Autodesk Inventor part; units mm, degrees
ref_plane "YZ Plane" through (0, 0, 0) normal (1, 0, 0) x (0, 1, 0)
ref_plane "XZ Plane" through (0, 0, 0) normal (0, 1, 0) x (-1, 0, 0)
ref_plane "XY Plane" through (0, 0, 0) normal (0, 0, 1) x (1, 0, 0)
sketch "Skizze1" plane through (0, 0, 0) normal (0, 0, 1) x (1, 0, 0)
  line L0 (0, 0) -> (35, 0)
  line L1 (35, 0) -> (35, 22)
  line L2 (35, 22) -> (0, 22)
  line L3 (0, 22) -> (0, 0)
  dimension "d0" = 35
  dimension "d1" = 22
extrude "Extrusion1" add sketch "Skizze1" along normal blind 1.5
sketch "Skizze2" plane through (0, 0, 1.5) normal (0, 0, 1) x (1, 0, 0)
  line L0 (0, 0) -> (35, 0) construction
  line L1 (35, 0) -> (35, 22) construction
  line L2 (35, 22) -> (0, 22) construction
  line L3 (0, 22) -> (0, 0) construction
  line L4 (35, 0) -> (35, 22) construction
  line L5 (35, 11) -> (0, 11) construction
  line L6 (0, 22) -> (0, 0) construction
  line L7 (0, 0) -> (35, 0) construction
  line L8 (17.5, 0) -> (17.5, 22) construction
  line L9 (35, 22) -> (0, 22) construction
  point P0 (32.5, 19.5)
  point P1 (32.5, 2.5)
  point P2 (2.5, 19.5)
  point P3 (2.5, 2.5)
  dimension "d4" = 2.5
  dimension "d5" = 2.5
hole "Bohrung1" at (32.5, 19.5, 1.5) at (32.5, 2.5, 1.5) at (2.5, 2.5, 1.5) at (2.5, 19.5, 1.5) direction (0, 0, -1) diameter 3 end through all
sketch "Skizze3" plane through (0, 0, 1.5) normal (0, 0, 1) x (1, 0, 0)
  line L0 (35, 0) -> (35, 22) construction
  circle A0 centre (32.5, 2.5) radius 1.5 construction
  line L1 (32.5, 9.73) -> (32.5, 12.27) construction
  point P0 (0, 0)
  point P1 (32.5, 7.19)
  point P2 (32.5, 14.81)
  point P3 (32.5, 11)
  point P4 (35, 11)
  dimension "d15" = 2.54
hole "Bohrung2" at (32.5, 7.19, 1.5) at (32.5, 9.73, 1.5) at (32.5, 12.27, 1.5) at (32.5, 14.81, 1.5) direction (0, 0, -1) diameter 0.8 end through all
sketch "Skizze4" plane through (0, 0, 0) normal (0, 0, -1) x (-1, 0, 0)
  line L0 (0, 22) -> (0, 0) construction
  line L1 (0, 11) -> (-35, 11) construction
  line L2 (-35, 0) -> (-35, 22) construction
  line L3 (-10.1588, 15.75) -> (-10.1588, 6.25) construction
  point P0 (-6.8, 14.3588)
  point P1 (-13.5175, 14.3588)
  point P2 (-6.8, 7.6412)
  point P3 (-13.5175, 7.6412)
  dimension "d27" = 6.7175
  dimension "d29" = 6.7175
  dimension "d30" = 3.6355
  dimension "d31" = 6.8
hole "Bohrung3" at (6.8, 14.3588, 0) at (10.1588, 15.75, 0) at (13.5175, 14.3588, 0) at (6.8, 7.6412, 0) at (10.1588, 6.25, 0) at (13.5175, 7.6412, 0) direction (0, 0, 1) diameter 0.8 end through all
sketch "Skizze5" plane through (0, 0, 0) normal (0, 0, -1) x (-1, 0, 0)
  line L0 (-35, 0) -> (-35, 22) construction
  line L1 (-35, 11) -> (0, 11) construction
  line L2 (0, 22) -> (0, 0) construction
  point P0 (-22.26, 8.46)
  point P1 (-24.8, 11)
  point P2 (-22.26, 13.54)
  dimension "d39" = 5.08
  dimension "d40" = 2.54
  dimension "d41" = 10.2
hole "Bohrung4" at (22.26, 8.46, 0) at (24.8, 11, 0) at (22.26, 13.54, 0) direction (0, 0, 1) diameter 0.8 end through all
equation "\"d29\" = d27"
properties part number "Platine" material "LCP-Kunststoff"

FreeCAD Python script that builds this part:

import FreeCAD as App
import Part
import Sketcher
Q = App.Units.Quantity


def add_polygon(sketch, points):
    """Adds a closed chain of lines whose ends are joined by coincident constraints."""
    first, n = sketch.GeometryCount, len(points)
    for a, b in zip(points, points[1:] + points[:1]):
        sketch.addGeometry(Part.LineSegment(App.Vector(*a, 0), App.Vector(*b, 0)), False)
    for i in range(n):
        sketch.addConstraint(Sketcher.Constraint("Coincident", first + i, 2, first + (i + 1) % n, 1))

doc = App.newDocument("Part")
params = doc.addObject("Spreadsheet::Sheet", "Params")
for row, (alias, value) in enumerate([
    ("sketch1_width", "35 mm"),
    ("sketch1_height", "22 mm"),
    ("pad1_length", "1.5 mm"),
    ("sketch2_diameter", "3 mm"),
    ("hole_diameter", "3 mm"),
    ("sketch3_diameter", "0.8 mm"),
    ("hole2_diameter", "0.8 mm"),
    ("sketch4_diameter", "0.8 mm"),
    ("hole3_diameter", "0.8 mm"),
    ("sketch5_diameter", "0.8 mm"),
    ("hole4_diameter", "0.8 mm"),
], start=1):
    params.set(f"A{row}", alias)
    params.set(f"B{row}", "=" + value)
    params.setAlias(f"B{row}", alias)

body = doc.addObject("PartDesign::Body", "Body")

# Sketch on XY plane
sketch1 = body.newObject("Sketcher::SketchObject", "Sketch")
sketch1.AttachmentSupport = (doc.getObject("XY_Plane"), [""])
sketch1.MapMode = "FlatFace"
add_polygon(sketch1, [(0, 22), (0, 0), (35, 0), (35, 22)])  # lines 0-3
sketch1.addConstraint(Sketcher.Constraint("Vertical", 0))
sketch1.addConstraint(Sketcher.Constraint("Horizontal", 1))
sketch1.addConstraint(Sketcher.Constraint("Vertical", 2))
sketch1.addConstraint(Sketcher.Constraint("Horizontal", 3))
sketch1.addConstraint(Sketcher.Constraint("Coincident", 0, 2, -1, 1))
sketch1.addConstraint(Sketcher.Constraint("DistanceX", 1, 1, 1, 2, Q("35 mm")))
sketch1.addConstraint(Sketcher.Constraint("DistanceY", 0, 2, 0, 1, Q("22 mm")))
sketch1.setExpression("Constraints[9]", "Params.sketch1_width")
sketch1.setExpression("Constraints[10]", "Params.sketch1_height")
pad1 = body.newObject("PartDesign::Pad", "Pad")
pad1.Profile = sketch1
pad1.setExpression("Length", "Params.pad1_length")

# Sketch on XY plane
sketch2 = body.newObject("Sketcher::SketchObject", "Sketch001")
sketch2.AttachmentSupport = (doc.getObject("XY_Plane"), [""])
sketch2.MapMode = "FlatFace"
sketch2.AttachmentOffset = App.Placement(App.Vector(0, 0, 1.5), App.Rotation())
sketch2.addGeometry(Part.Circle(App.Vector(32.5, 19.5, 0), App.Vector(0, 0, 1), 1.5), False)
sketch2.addGeometry(Part.Circle(App.Vector(32.5, 2.5, 0), App.Vector(0, 0, 1), 1.5), False)
sketch2.addGeometry(Part.Circle(App.Vector(2.5, 2.5, 0), App.Vector(0, 0, 1), 1.5), False)
sketch2.addGeometry(Part.Circle(App.Vector(2.5, 19.5, 0), App.Vector(0, 0, 1), 1.5), False)
sketch2.addConstraint(Sketcher.Constraint("Equal", 0, 1))
sketch2.addConstraint(Sketcher.Constraint("Equal", 1, 2))
sketch2.addConstraint(Sketcher.Constraint("Equal", 2, 3))
sketch2.addConstraint(Sketcher.Constraint("Horizontal", 1, 3, 2, 3))
sketch2.addConstraint(Sketcher.Constraint("Horizontal", 0, 3, 3, 3))
sketch2.addConstraint(Sketcher.Constraint("Vertical", 0, 3, 1, 3))
sketch2.addConstraint(Sketcher.Constraint("Vertical", 2, 3, 3, 3))
sketch2.addConstraint(Sketcher.Constraint("Diameter", 0, Q("3 mm")))
sketch2.addConstraint(Sketcher.Constraint("DistanceY", 1, 3, 0, 3, Q("17 mm")))
sketch2.addConstraint(Sketcher.Constraint("DistanceX", 2, 3, 1, 3, Q("30 mm")))
sketch2.addConstraint(Sketcher.Constraint("DistanceX", -1, 1, 0, 3, Q("32.5 mm")))
sketch2.addConstraint(Sketcher.Constraint("DistanceY", -1, 1, 0, 3, Q("19.5 mm")))
sketch2.setExpression("Constraints[7]", "Params.sketch2_diameter")
doc.recompute()
hole = body.newObject("PartDesign::Hole", "Hole")
hole.Profile = sketch2
hole.ThreadType = "None"
hole.setExpression("Diameter", "Params.hole_diameter")
hole.DepthType = "ThroughAll"

# Sketch on XY plane
sketch3 = body.newObject("Sketcher::SketchObject", "Sketch002")
sketch3.AttachmentSupport = (doc.getObject("XY_Plane"), [""])
sketch3.MapMode = "FlatFace"
sketch3.AttachmentOffset = App.Placement(App.Vector(0, 0, 1.5), App.Rotation())
sketch3.addGeometry(Part.Circle(App.Vector(32.5, 7.19, 0), App.Vector(0, 0, 1), 0.4), False)
sketch3.addGeometry(Part.Circle(App.Vector(32.5, 9.73, 0), App.Vector(0, 0, 1), 0.4), False)
sketch3.addGeometry(Part.Circle(App.Vector(32.5, 12.27, 0), App.Vector(0, 0, 1), 0.4), False)
sketch3.addGeometry(Part.Circle(App.Vector(32.5, 14.81, 0), App.Vector(0, 0, 1), 0.4), False)
sketch3.addConstraint(Sketcher.Constraint("Equal", 0, 1))
sketch3.addConstraint(Sketcher.Constraint("Equal", 1, 2))
sketch3.addConstraint(Sketcher.Constraint("Equal", 2, 3))
sketch3.addConstraint(Sketcher.Constraint("Vertical", 0, 3, 1, 3))
sketch3.addConstraint(Sketcher.Constraint("Vertical", 1, 3, 2, 3))
sketch3.addConstraint(Sketcher.Constraint("Vertical", 2, 3, 3, 3))
sketch3.addConstraint(Sketcher.Constraint("Diameter", 0, Q("0.8 mm")))
sketch3.addConstraint(Sketcher.Constraint("DistanceX", -1, 1, 0, 3, Q("32.5 mm")))
sketch3.addConstraint(Sketcher.Constraint("DistanceY", -1, 1, 0, 3, Q("7.19 mm")))
sketch3.addConstraint(Sketcher.Constraint("DistanceY", -1, 1, 1, 3, Q("9.73 mm")))
sketch3.addConstraint(Sketcher.Constraint("DistanceY", -1, 1, 2, 3, Q("12.27 mm")))
sketch3.addConstraint(Sketcher.Constraint("DistanceY", -1, 1, 3, 3, Q("14.81 mm")))
sketch3.setExpression("Constraints[6]", "Params.sketch3_diameter")
doc.recompute()
hole2 = body.newObject("PartDesign::Hole", "Hole001")
hole2.Profile = sketch3
hole2.ThreadType = "None"
hole2.setExpression("Diameter", "Params.hole2_diameter")
hole2.DepthType = "ThroughAll"

# Sketch on XY plane
sketch4 = body.newObject("Sketcher::SketchObject", "Sketch003")
sketch4.AttachmentSupport = (doc.getObject("XY_Plane"), [""])
sketch4.MapMode = "FlatFace"
sketch4.addGeometry(Part.Circle(App.Vector(6.8, 14.36, 0), App.Vector(0, 0, 1), 0.4), False)
sketch4.addGeometry(Part.Circle(App.Vector(10.16, 15.75, 0), App.Vector(0, 0, 1), 0.4), False)
sketch4.addGeometry(Part.Circle(App.Vector(13.52, 14.36, 0), App.Vector(0, 0, 1), 0.4), False)
sketch4.addGeometry(Part.Circle(App.Vector(6.8, 7.64, 0), App.Vector(0, 0, 1), 0.4), False)
sketch4.addGeometry(Part.Circle(App.Vector(10.16, 6.25, 0), App.Vector(0, 0, 1), 0.4), False)
sketch4.addGeometry(Part.Circle(App.Vector(13.52, 7.64, 0), App.Vector(0, 0, 1), 0.4), False)
sketch4.addConstraint(Sketcher.Constraint("Equal", 0, 1))
sketch4.addConstraint(Sketcher.Constraint("Equal", 1, 2))
sketch4.addConstraint(Sketcher.Constraint("Equal", 2, 3))
sketch4.addConstraint(Sketcher.Constraint("Equal", 3, 4))
sketch4.addConstraint(Sketcher.Constraint("Equal", 4, 5))
sketch4.addConstraint(Sketcher.Constraint("Horizontal", 0, 3, 2, 3))
sketch4.addConstraint(Sketcher.Constraint("Horizontal", 3, 3, 5, 3))
sketch4.addConstraint(Sketcher.Constraint("Vertical", 0, 3, 3, 3))
sketch4.addConstraint(Sketcher.Constraint("Vertical", 1, 3, 4, 3))
sketch4.addConstraint(Sketcher.Constraint("Vertical", 2, 3, 5, 3))
sketch4.addConstraint(Sketcher.Constraint("Diameter", 0, Q("0.8 mm")))
sketch4.addConstraint(Sketcher.Constraint("DistanceX", -1, 1, 0, 3, Q("6.8 mm")))
sketch4.addConstraint(Sketcher.Constraint("DistanceY", 4, 3, 1, 3, Q("9.5 mm")))
sketch4.addConstraint(Sketcher.Constraint("DistanceY", -1, 1, 1, 3, Q("15.75 mm")))
sketch4.addConstraint(Sketcher.Constraint("DistanceY", -1, 1, 0, 3, Q("14.3588 mm")))
sketch4.addConstraint(Sketcher.Constraint("DistanceX", -1, 1, 1, 3, Q("10.1588 mm")))
sketch4.addConstraint(Sketcher.Constraint("DistanceX", -1, 1, 2, 3, Q("13.5175 mm")))
sketch4.addConstraint(Sketcher.Constraint("DistanceY", -1, 1, 3, 3, Q("7.6412 mm")))
sketch4.setExpression("Constraints[10]", "Params.sketch4_diameter")
doc.recompute()
hole3 = body.newObject("PartDesign::Hole", "Hole002")
hole3.Profile = sketch4
hole3.ThreadType = "None"
hole3.setExpression("Diameter", "Params.hole3_diameter")
hole3.DepthType = "ThroughAll"
hole3.Reversed = True

# Sketch on XY plane
sketch5 = body.newObject("Sketcher::SketchObject", "Sketch004")
sketch5.AttachmentSupport = (doc.getObject("XY_Plane"), [""])
sketch5.MapMode = "FlatFace"
sketch5.addGeometry(Part.Circle(App.Vector(22.26, 8.46, 0), App.Vector(0, 0, 1), 0.4), False)
sketch5.addGeometry(Part.Circle(App.Vector(24.8, 11, 0), App.Vector(0, 0, 1), 0.4), False)
sketch5.addGeometry(Part.Circle(App.Vector(22.26, 13.54, 0), App.Vector(0, 0, 1), 0.4), False)
sketch5.addConstraint(Sketcher.Constraint("Equal", 0, 1))
sketch5.addConstraint(Sketcher.Constraint("Equal", 1, 2))
sketch5.addConstraint(Sketcher.Constraint("Vertical", 0, 3, 2, 3))
sketch5.addConstraint(Sketcher.Constraint("Diameter", 0, Q("0.8 mm")))
sketch5.addConstraint(Sketcher.Constraint("DistanceY", -1, 1, 1, 3, Q("11 mm")))
sketch5.addConstraint(Sketcher.Constraint("DistanceX", -1, 1, 1, 3, Q("24.8 mm")))
sketch5.addConstraint(Sketcher.Constraint("DistanceX", -1, 1, 0, 3, Q("22.26 mm")))
sketch5.addConstraint(Sketcher.Constraint("DistanceY", -1, 1, 0, 3, Q("8.46 mm")))
sketch5.addConstraint(Sketcher.Constraint("DistanceY", -1, 1, 2, 3, Q("13.54 mm")))
sketch5.setExpression("Constraints[3]", "Params.sketch5_diameter")
doc.recompute()
hole4 = body.newObject("PartDesign::Hole", "Hole003")
hole4.Profile = sketch5
hole4.ThreadType = "None"
hole4.setExpression("Diameter", "Params.hole4_diameter")
hole4.DepthType = "ThroughAll"
hole4.Reversed = True

doc.recompute()
